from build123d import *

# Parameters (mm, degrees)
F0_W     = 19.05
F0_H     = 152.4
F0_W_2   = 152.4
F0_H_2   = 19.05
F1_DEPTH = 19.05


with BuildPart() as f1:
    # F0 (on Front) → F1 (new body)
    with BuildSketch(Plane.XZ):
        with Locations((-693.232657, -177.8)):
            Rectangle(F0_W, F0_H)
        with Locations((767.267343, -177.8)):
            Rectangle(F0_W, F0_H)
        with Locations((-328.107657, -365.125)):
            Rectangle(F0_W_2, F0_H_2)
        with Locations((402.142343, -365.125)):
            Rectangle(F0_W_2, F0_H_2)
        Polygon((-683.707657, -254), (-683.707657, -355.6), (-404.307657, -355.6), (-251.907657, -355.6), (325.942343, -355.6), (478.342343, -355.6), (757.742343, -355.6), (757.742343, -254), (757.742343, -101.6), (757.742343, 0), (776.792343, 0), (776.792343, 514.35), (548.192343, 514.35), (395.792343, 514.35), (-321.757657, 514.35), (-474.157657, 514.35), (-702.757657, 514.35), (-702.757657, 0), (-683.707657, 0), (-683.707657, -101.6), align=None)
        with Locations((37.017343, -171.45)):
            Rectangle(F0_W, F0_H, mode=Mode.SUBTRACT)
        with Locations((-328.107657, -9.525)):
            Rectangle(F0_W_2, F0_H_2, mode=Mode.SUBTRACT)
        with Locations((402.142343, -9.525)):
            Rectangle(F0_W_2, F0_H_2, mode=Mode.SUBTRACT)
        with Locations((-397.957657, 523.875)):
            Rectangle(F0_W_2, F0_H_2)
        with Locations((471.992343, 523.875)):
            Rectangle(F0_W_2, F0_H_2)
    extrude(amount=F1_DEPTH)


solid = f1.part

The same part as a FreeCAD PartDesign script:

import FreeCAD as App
import Part
import Sketcher

V = App.Vector
Q = App.Units.Quantity

doc = App.newDocument("Part")
body = doc.addObject("PartDesign::Body", "Body")

# Sketch on XZ plane
sketch1 = body.newObject("Sketcher::SketchObject", "Sketch")
sketch1.AttachmentSupport = (doc.getObject("XZ_Plane"), [""])
sketch1.MapMode = "FlatFace"
sketch1.addGeometry(Part.LineSegment(V(-703, -102, 0), V(-703, -254, 0)), False)
sketch1.addGeometry(Part.LineSegment(V(-703, -254, 0), V(-684, -254, 0)), False)
sketch1.addGeometry(Part.LineSegment(V(-684, -254, 0), V(-684, -356, 0)), False)
sketch1.addGeometry(Part.LineSegment(V(-684, -356, 0), V(-404, -356, 0)), False)
sketch1.addGeometry(Part.LineSegment(V(-404, -356, 0), V(-404, -375, 0)), False)
sketch1.addGeometry(Part.LineSegment(V(-404, -375, 0), V(-252, -375, 0)), False)
sketch1.addGeometry(Part.LineSegment(V(-252, -375, 0), V(-252, -356, 0)), False)
sketch1.addGeometry(Part.LineSegment(V(-252, -356, 0), V(326, -356, 0)), False)
sketch1.addGeometry(Part.LineSegment(V(326, -356, 0), V(326, -375, 0)), False)
sketch1.addGeometry(Part.LineSegment(V(326, -375, 0), V(478, -375, 0)), False)
sketch1.addGeometry(Part.LineSegment(V(478, -375, 0), V(478, -356, 0)), False)
sketch1.addGeometry(Part.LineSegment(V(478, -356, 0), V(758, -356, 0)), False)
sketch1.addGeometry(Part.LineSegment(V(758, -356, 0), V(758, -254, 0)), False)
sketch1.addGeometry(Part.LineSegment(V(758, -254, 0), V(777, -254, 0)), False)
sketch1.addGeometry(Part.LineSegment(V(777, -254, 0), V(777, -102, 0)), False)
sketch1.addGeometry(Part.LineSegment(V(777, -102, 0), V(758, -102, 0)), False)
sketch1.addGeometry(Part.LineSegment(V(758, -102, 0), V(758, 0, 0)), False)
sketch1.addGeometry(Part.LineSegment(V(758, 0, 0), V(777, 0, 0)), False)
sketch1.addGeometry(Part.LineSegment(V(777, 0, 0), V(777, 514, 0)), False)
sketch1.addGeometry(Part.LineSegment(V(777, 514, 0), V(548, 514, 0)), False)
sketch1.addGeometry(Part.LineSegment(V(548, 514, 0), V(548, 533, 0)), False)
sketch1.addGeometry(Part.LineSegment(V(548, 533, 0), V(396, 533, 0)), False)
sketch1.addGeometry(Part.LineSegment(V(396, 533, 0), V(396, 514, 0)), False)
sketch1.addGeometry(Part.LineSegment(V(396, 514, 0), V(-322, 514, 0)), False)
sketch1.addGeometry(Part.LineSegment(V(-322, 514, 0), V(-322, 533, 0)), False)
sketch1.addGeometry(Part.LineSegment(V(-322, 533, 0), V(-474, 533, 0)), False)
sketch1.addGeometry(Part.LineSegment(V(-474, 533, 0), V(-474, 514, 0)), False)
sketch1.addGeometry(Part.LineSegment(V(-474, 514, 0), V(-703, 514, 0)), False)
sketch1.addGeometry(Part.LineSegment(V(-703, 514, 0), V(-703, 0, 0)), False)
sketch1.addGeometry(Part.LineSegment(V(-703, 0, 0), V(-684, 0, 0)), False)
sketch1.addGeometry(Part.LineSegment(V(-684, 0, 0), V(-684, -102, 0)), False)
sketch1.addGeometry(Part.LineSegment(V(-684, -102, 0), V(-703, -102, 0)), False)
sketch1.addGeometry(Part.LineSegment(V(47, -248, 0), V(27, -248, 0)), False)
sketch1.addGeometry(Part.LineSegment(V(27, -248, 0), V(27, -95, 0)), False)
sketch1.addGeometry(Part.LineSegment(V(27, -95, 0), V(47, -95, 0)), False)
sketch1.addGeometry(Part.LineSegment(V(47, -95, 0), V(47, -248, 0)), False)
sketch1.addGeometry(Part.LineSegment(V(-252, -19, 0), V(-404, -19, 0)), False)
sketch1.addGeometry(Part.LineSegment(V(-404, -19, 0), V(-404, 0, 0)), False)
sketch1.addGeometry(Part.LineSegment(V(-404, 0, 0), V(-252, 0, 0)), False)
sketch1.addGeometry(Part.LineSegment(V(-252, 0, 0), V(-252, -19, 0)), False)
sketch1.addGeometry(Part.LineSegment(V(478, -19, 0), V(326, -19, 0)), False)
sketch1.addGeometry(Part.LineSegment(V(326, -19, 0), V(326, 0, 0)), False)
sketch1.addGeometry(Part.LineSegment(V(326, 0, 0), V(478, 0, 0)), False)
sketch1.addGeometry(Part.LineSegment(V(478, 0, 0), V(478, -19, 0)), False)
sketch1.addConstraint(Sketcher.Constraint("Coincident", 0, 2, 1, 1))
sketch1.addConstraint(Sketcher.Constraint("Coincident", 1, 2, 2, 1))
sketch1.addConstraint(Sketcher.Constraint("Coincident", 2, 2, 3, 1))
sketch1.addConstraint(Sketcher.Constraint("Coincident", 3, 2, 4, 1))
sketch1.addConstraint(Sketcher.Constraint("Coincident", 4, 2, 5, 1))
sketch1.addConstraint(Sketcher.Constraint("Coincident", 5, 2, 6, 1))
sketch1.addConstraint(Sketcher.Constraint("Coincident", 6, 2, 7, 1))
sketch1.addConstraint(Sketcher.Constraint("Coincident", 7, 2, 8, 1))
sketch1.addConstraint(Sketcher.Constraint("Coincident", 8, 2, 9, 1))
sketch1.addConstraint(Sketcher.Constraint("Coincident", 9, 2, 10, 1))
sketch1.addConstraint(Sketcher.Constraint("Coincident", 10, 2, 11, 1))
sketch1.addConstraint(Sketcher.Constraint("Coincident", 11, 2, 12, 1))
sketch1.addConstraint(Sketcher.Constraint("Coincident", 12, 2, 13, 1))
sketch1.addConstraint(Sketcher.Constraint("Coincident", 13, 2, 14, 1))
sketch1.addConstraint(Sketcher.Constraint("Coincident", 14, 2, 15, 1))
sketch1.addConstraint(Sketcher.Constraint("Coincident", 15, 2, 16, 1))
sketch1.addConstraint(Sketcher.Constraint("Coincident", 16, 2, 17, 1))
sketch1.addConstraint(Sketcher.Constraint("Coincident", 17, 2, 18, 1))
sketch1.addConstraint(Sketcher.Constraint("Coincident", 18, 2, 19, 1))
sketch1.addConstraint(Sketcher.Constraint("Coincident", 19, 2, 20, 1))
sketch1.addConstraint(Sketcher.Constraint("Coincident", 20, 2, 21, 1))
sketch1.addConstraint(Sketcher.Constraint("Coincident", 21, 2, 22, 1))
sketch1.addConstraint(Sketcher.Constraint("Coincident", 22, 2, 23, 1))
sketch1.addConstraint(Sketcher.Constraint("Coincident", 23, 2, 24, 1))
sketch1.addConstraint(Sketcher.Constraint("Coincident", 24, 2, 25, 1))
sketch1.addConstraint(Sketcher.Constraint("Coincident", 25, 2, 26, 1))
sketch1.addConstraint(Sketcher.Constraint("Coincident", 26, 2, 27, 1))
sketch1.addConstraint(Sketcher.Constraint("Coincident", 27, 2, 28, 1))
sketch1.addConstraint(Sketcher.Constraint("Coincident", 28, 2, 29, 1))
sketch1.addConstraint(Sketcher.Constraint("Coincident", 29, 2, 30, 1))
sketch1.addConstraint(Sketcher.Constraint("Coincident", 30, 2, 31, 1))
sketch1.addConstraint(Sketcher.Constraint("Coincident", 31, 2, 0, 1))
sketch1.addConstraint(Sketcher.Constraint("Coincident", 32, 2, 33, 1))
sketch1.addConstraint(Sketcher.Constraint("Coincident", 33, 2, 34, 1))
sketch1.addConstraint(Sketcher.Constraint("Coincident", 34, 2, 35, 1))
sketch1.addConstraint(Sketcher.Constraint("Coincident", 35, 2, 32, 1))
sketch1.addConstraint(Sketcher.Constraint("Coincident", 36, 2, 37, 1))
sketch1.addConstraint(Sketcher.Constraint("Coincident", 37, 2, 38, 1))
sketch1.addConstraint(Sketcher.Constraint("Coincident", 38, 2, 39, 1))
sketch1.addConstraint(Sketcher.Constraint("Coincident", 39, 2, 36, 1))
sketch1.addConstraint(Sketcher.Constraint("Coincident", 40, 2, 41, 1))
sketch1.addConstraint(Sketcher.Constraint("Coincident", 41, 2, 42, 1))
sketch1.addConstraint(Sketcher.Constraint("Coincident", 42, 2, 43, 1))
sketch1.addConstraint(Sketcher.Constraint("Coincident", 43, 2, 40, 1))
sketch1.addConstraint(Sketcher.Constraint("Vertical", 0))
sketch1.addConstraint(Sketcher.Constraint("Horizontal", 1))
sketch1.addConstraint(Sketcher.Constraint("Vertical", 2))
sketch1.addConstraint(Sketcher.Constraint("Horizontal", 3))
sketch1.addConstraint(Sketcher.Constraint("Vertical", 4))
sketch1.addConstraint(Sketcher.Constraint("Horizontal", 5))
sketch1.addConstraint(Sketcher.Constraint("Vertical", 6))
sketch1.addConstraint(Sketcher.Constraint("Horizontal", 7))
sketch1.addConstraint(Sketcher.Constraint("Vertical", 8))
sketch1.addConstraint(Sketcher.Constraint("Horizontal", 9))
sketch1.addConstraint(Sketcher.Constraint("Vertical", 10))
sketch1.addConstraint(Sketcher.Constraint("Horizontal", 11))
sketch1.addConstraint(Sketcher.Constraint("Vertical", 12))
sketch1.addConstraint(Sketcher.Constraint("Horizontal", 13))
sketch1.addConstraint(Sketcher.Constraint("Vertical", 14))
sketch1.addConstraint(Sketcher.Constraint("Horizontal", 15))
sketch1.addConstraint(Sketcher.Constraint("Vertical", 16))
sketch1.addConstraint(Sketcher.Constraint("Horizontal", 17))
sketch1.addConstraint(Sketcher.Constraint("Vertical", 18))
sketch1.addConstraint(Sketcher.Constraint("Horizontal", 19))
sketch1.addConstraint(Sketcher.Constraint("Vertical", 20))
sketch1.addConstraint(Sketcher.Constraint("Horizontal", 21))
sketch1.addConstraint(Sketcher.Constraint("Vertical", 22))
sketch1.addConstraint(Sketcher.Constraint("Horizontal", 23))
sketch1.addConstraint(Sketcher.Constraint("Vertical", 24))
sketch1.addConstraint(Sketcher.Constraint("Horizontal", 25))
sketch1.addConstraint(Sketcher.Constraint("Vertical", 26))
sketch1.addConstraint(Sketcher.Constraint("Horizontal", 27))
sketch1.addConstraint(Sketcher.Constraint("Vertical", 28))
sketch1.addConstraint(Sketcher.Constraint("Horizontal", 29))
sketch1.addConstraint(Sketcher.Constraint("Vertical", 30))
sketch1.addConstraint(Sketcher.Constraint("Horizontal", 31))
sketch1.addConstraint(Sketcher.Constraint("Horizontal", 32))
sketch1.addConstraint(Sketcher.Constraint("Vertical", 33))
sketch1.addConstraint(Sketcher.Constraint("Horizontal", 34))
sketch1.addConstraint(Sketcher.Constraint("Vertical", 35))
sketch1.addConstraint(Sketcher.Constraint("Horizontal", 36))
sketch1.addConstraint(Sketcher.Constraint("Vertical", 37))
sketch1.addConstraint(Sketcher.Constraint("Horizontal", 38))
sketch1.addConstraint(Sketcher.Constraint("Vertical", 39))
sketch1.addConstraint(Sketcher.Constraint("Horizontal", 40))
sketch1.addConstraint(Sketcher.Constraint("Vertical", 41))
sketch1.addConstraint(Sketcher.Constraint("Horizontal", 42))
sketch1.addConstraint(Sketcher.Constraint("Vertical", 43))
sketch1.addConstraint(Sketcher.Constraint("PointOnObject", 16, 2, -1))
sketch1.addConstraint(Sketcher.Constraint("PointOnObject", 28, 2, -1))
sketch1.addConstraint(Sketcher.Constraint("PointOnObject", 37, 2, -1))
sketch1.addConstraint(Sketcher.Constraint("PointOnObject", 41, 2, -1))
sketch1.addConstraint(Sketcher.Constraint("Horizontal", 3, 2, 6, 2))
sketch1.addConstraint(Sketcher.Constraint("Horizontal", 5, 2, 8, 2))
sketch1.addConstraint(Sketcher.Constraint("Horizontal", 7, 2, 10, 2))
sketch1.addConstraint(Sketcher.Constraint("Horizontal", 1, 2, 12, 2))
sketch1.addConstraint(Sketcher.Constraint("Horizontal", 19, 2, 22, 2))
sketch1.addConstraint(Sketcher.Constraint("Horizontal", 21, 2, 24, 2))
sketch1.addConstraint(Sketcher.Constraint("Horizontal", 23, 2, 26, 2))
sketch1.addConstraint(Sketcher.Constraint("Horizontal", 15, 2, 30, 2))
sketch1.addConstraint(Sketcher.Constraint("Horizontal", 39, 2, 40, 2))
sketch1.addConstraint(Sketcher.Constraint("Vertical", 12, 2, 15, 2))
sketch1.addConstraint(Sketcher.Constraint("Vertical", 14, 2, 17, 2))
sketch1.addConstraint(Sketcher.Constraint("Vertical", 0, 2, 27, 2))
sketch1.addConstraint(Sketcher.Constraint("Vertical", 2, 2, 29, 2))
sketch1.addConstraint(Sketcher.Constraint("Vertical", 4, 2, 36, 2))
sketch1.addConstraint(Sketcher.Constraint("Vertical", 6, 2, 38, 2))
sketch1.addConstraint(Sketcher.Constraint("Vertical", 8, 2, 40, 2))
sketch1.addConstraint(Sketcher.Constraint("Vertical", 10, 2, 42, 2))
sketch1.addConstraint(Sketcher.Constraint("Equal", 5, 9))
sketch1.addConstraint(Sketcher.Constraint("Equal", 3, 11))
sketch1.addConstraint(Sketcher.Constraint("Equal", 1, 13))
sketch1.addConstraint(Sketcher.Constraint("Equal", 9, 21))
sketch1.addConstraint(Sketcher.Constraint("Equal", 21, 25))
sketch1.addConstraint(Sketcher.Constraint("Equal", 19, 27))
sketch1.addConstraint(Sketcher.Constraint("Equal", 31, 32))
sketch1.addConstraint(Sketcher.Constraint("Equal", 42, 0))
sketch1.addConstraint(Sketcher.Constraint("Equal", 34, 4))
sketch1.addConstraint(Sketcher.Constraint("Equal", 12, 16))
sketch1.addConstraint(Sketcher.Constraint("Equal", 10, 20))
sketch1.addConstraint(Sketcher.Constraint("Equal", 14, 33))
sketch1.addConstraint(Sketcher.Constraint("Equal", 26, 37))
sketch1.addConstraint(Sketcher.Constraint("DistanceX", 3, 1, 3, 2, Q("11 in")))
sketch1.addConstraint(Sketcher.Constraint("DistanceX", 5, 1, 5, 2, Q("6 in")))
sketch1.addConstraint(Sketcher.Constraint("DistanceX", 19, 2, 19, 1, Q("9 in")))
sketch1.addConstraint(Sketcher.Constraint("DistanceY", 2, 2, 2, 1, Q("4 in")))
sketch1.addConstraint(Sketcher.Constraint("DistanceY", -1, 1, 20, 2, Q("21 in")))
sketch1.addConstraint(Sketcher.Constraint("DistanceX", 6, 2, 32, 2, Q("11 in")))
sketch1.addConstraint(Sketcher.Constraint("DistanceY", 5, 2, 32, 2, Q("5 in")))
sketch1.addConstraint(Sketcher.Constraint("DistanceX", 34, 2, 7, 2, Q("11 in")))
sketch1.addConstraint(Sketcher.Constraint("DistanceX", 1, 1, 1, 2, Q("0.75 in")))
sketch1.addConstraint(Sketcher.Constraint("DistanceX", 0, 2, -1, 1, Q("702.757657 mm")))
pad1 = body.newObject("PartDesign::Pad", "Pad")
pad1.Profile = sketch1
pad1.Length = Q("0.75 in")

doc.recompute()
